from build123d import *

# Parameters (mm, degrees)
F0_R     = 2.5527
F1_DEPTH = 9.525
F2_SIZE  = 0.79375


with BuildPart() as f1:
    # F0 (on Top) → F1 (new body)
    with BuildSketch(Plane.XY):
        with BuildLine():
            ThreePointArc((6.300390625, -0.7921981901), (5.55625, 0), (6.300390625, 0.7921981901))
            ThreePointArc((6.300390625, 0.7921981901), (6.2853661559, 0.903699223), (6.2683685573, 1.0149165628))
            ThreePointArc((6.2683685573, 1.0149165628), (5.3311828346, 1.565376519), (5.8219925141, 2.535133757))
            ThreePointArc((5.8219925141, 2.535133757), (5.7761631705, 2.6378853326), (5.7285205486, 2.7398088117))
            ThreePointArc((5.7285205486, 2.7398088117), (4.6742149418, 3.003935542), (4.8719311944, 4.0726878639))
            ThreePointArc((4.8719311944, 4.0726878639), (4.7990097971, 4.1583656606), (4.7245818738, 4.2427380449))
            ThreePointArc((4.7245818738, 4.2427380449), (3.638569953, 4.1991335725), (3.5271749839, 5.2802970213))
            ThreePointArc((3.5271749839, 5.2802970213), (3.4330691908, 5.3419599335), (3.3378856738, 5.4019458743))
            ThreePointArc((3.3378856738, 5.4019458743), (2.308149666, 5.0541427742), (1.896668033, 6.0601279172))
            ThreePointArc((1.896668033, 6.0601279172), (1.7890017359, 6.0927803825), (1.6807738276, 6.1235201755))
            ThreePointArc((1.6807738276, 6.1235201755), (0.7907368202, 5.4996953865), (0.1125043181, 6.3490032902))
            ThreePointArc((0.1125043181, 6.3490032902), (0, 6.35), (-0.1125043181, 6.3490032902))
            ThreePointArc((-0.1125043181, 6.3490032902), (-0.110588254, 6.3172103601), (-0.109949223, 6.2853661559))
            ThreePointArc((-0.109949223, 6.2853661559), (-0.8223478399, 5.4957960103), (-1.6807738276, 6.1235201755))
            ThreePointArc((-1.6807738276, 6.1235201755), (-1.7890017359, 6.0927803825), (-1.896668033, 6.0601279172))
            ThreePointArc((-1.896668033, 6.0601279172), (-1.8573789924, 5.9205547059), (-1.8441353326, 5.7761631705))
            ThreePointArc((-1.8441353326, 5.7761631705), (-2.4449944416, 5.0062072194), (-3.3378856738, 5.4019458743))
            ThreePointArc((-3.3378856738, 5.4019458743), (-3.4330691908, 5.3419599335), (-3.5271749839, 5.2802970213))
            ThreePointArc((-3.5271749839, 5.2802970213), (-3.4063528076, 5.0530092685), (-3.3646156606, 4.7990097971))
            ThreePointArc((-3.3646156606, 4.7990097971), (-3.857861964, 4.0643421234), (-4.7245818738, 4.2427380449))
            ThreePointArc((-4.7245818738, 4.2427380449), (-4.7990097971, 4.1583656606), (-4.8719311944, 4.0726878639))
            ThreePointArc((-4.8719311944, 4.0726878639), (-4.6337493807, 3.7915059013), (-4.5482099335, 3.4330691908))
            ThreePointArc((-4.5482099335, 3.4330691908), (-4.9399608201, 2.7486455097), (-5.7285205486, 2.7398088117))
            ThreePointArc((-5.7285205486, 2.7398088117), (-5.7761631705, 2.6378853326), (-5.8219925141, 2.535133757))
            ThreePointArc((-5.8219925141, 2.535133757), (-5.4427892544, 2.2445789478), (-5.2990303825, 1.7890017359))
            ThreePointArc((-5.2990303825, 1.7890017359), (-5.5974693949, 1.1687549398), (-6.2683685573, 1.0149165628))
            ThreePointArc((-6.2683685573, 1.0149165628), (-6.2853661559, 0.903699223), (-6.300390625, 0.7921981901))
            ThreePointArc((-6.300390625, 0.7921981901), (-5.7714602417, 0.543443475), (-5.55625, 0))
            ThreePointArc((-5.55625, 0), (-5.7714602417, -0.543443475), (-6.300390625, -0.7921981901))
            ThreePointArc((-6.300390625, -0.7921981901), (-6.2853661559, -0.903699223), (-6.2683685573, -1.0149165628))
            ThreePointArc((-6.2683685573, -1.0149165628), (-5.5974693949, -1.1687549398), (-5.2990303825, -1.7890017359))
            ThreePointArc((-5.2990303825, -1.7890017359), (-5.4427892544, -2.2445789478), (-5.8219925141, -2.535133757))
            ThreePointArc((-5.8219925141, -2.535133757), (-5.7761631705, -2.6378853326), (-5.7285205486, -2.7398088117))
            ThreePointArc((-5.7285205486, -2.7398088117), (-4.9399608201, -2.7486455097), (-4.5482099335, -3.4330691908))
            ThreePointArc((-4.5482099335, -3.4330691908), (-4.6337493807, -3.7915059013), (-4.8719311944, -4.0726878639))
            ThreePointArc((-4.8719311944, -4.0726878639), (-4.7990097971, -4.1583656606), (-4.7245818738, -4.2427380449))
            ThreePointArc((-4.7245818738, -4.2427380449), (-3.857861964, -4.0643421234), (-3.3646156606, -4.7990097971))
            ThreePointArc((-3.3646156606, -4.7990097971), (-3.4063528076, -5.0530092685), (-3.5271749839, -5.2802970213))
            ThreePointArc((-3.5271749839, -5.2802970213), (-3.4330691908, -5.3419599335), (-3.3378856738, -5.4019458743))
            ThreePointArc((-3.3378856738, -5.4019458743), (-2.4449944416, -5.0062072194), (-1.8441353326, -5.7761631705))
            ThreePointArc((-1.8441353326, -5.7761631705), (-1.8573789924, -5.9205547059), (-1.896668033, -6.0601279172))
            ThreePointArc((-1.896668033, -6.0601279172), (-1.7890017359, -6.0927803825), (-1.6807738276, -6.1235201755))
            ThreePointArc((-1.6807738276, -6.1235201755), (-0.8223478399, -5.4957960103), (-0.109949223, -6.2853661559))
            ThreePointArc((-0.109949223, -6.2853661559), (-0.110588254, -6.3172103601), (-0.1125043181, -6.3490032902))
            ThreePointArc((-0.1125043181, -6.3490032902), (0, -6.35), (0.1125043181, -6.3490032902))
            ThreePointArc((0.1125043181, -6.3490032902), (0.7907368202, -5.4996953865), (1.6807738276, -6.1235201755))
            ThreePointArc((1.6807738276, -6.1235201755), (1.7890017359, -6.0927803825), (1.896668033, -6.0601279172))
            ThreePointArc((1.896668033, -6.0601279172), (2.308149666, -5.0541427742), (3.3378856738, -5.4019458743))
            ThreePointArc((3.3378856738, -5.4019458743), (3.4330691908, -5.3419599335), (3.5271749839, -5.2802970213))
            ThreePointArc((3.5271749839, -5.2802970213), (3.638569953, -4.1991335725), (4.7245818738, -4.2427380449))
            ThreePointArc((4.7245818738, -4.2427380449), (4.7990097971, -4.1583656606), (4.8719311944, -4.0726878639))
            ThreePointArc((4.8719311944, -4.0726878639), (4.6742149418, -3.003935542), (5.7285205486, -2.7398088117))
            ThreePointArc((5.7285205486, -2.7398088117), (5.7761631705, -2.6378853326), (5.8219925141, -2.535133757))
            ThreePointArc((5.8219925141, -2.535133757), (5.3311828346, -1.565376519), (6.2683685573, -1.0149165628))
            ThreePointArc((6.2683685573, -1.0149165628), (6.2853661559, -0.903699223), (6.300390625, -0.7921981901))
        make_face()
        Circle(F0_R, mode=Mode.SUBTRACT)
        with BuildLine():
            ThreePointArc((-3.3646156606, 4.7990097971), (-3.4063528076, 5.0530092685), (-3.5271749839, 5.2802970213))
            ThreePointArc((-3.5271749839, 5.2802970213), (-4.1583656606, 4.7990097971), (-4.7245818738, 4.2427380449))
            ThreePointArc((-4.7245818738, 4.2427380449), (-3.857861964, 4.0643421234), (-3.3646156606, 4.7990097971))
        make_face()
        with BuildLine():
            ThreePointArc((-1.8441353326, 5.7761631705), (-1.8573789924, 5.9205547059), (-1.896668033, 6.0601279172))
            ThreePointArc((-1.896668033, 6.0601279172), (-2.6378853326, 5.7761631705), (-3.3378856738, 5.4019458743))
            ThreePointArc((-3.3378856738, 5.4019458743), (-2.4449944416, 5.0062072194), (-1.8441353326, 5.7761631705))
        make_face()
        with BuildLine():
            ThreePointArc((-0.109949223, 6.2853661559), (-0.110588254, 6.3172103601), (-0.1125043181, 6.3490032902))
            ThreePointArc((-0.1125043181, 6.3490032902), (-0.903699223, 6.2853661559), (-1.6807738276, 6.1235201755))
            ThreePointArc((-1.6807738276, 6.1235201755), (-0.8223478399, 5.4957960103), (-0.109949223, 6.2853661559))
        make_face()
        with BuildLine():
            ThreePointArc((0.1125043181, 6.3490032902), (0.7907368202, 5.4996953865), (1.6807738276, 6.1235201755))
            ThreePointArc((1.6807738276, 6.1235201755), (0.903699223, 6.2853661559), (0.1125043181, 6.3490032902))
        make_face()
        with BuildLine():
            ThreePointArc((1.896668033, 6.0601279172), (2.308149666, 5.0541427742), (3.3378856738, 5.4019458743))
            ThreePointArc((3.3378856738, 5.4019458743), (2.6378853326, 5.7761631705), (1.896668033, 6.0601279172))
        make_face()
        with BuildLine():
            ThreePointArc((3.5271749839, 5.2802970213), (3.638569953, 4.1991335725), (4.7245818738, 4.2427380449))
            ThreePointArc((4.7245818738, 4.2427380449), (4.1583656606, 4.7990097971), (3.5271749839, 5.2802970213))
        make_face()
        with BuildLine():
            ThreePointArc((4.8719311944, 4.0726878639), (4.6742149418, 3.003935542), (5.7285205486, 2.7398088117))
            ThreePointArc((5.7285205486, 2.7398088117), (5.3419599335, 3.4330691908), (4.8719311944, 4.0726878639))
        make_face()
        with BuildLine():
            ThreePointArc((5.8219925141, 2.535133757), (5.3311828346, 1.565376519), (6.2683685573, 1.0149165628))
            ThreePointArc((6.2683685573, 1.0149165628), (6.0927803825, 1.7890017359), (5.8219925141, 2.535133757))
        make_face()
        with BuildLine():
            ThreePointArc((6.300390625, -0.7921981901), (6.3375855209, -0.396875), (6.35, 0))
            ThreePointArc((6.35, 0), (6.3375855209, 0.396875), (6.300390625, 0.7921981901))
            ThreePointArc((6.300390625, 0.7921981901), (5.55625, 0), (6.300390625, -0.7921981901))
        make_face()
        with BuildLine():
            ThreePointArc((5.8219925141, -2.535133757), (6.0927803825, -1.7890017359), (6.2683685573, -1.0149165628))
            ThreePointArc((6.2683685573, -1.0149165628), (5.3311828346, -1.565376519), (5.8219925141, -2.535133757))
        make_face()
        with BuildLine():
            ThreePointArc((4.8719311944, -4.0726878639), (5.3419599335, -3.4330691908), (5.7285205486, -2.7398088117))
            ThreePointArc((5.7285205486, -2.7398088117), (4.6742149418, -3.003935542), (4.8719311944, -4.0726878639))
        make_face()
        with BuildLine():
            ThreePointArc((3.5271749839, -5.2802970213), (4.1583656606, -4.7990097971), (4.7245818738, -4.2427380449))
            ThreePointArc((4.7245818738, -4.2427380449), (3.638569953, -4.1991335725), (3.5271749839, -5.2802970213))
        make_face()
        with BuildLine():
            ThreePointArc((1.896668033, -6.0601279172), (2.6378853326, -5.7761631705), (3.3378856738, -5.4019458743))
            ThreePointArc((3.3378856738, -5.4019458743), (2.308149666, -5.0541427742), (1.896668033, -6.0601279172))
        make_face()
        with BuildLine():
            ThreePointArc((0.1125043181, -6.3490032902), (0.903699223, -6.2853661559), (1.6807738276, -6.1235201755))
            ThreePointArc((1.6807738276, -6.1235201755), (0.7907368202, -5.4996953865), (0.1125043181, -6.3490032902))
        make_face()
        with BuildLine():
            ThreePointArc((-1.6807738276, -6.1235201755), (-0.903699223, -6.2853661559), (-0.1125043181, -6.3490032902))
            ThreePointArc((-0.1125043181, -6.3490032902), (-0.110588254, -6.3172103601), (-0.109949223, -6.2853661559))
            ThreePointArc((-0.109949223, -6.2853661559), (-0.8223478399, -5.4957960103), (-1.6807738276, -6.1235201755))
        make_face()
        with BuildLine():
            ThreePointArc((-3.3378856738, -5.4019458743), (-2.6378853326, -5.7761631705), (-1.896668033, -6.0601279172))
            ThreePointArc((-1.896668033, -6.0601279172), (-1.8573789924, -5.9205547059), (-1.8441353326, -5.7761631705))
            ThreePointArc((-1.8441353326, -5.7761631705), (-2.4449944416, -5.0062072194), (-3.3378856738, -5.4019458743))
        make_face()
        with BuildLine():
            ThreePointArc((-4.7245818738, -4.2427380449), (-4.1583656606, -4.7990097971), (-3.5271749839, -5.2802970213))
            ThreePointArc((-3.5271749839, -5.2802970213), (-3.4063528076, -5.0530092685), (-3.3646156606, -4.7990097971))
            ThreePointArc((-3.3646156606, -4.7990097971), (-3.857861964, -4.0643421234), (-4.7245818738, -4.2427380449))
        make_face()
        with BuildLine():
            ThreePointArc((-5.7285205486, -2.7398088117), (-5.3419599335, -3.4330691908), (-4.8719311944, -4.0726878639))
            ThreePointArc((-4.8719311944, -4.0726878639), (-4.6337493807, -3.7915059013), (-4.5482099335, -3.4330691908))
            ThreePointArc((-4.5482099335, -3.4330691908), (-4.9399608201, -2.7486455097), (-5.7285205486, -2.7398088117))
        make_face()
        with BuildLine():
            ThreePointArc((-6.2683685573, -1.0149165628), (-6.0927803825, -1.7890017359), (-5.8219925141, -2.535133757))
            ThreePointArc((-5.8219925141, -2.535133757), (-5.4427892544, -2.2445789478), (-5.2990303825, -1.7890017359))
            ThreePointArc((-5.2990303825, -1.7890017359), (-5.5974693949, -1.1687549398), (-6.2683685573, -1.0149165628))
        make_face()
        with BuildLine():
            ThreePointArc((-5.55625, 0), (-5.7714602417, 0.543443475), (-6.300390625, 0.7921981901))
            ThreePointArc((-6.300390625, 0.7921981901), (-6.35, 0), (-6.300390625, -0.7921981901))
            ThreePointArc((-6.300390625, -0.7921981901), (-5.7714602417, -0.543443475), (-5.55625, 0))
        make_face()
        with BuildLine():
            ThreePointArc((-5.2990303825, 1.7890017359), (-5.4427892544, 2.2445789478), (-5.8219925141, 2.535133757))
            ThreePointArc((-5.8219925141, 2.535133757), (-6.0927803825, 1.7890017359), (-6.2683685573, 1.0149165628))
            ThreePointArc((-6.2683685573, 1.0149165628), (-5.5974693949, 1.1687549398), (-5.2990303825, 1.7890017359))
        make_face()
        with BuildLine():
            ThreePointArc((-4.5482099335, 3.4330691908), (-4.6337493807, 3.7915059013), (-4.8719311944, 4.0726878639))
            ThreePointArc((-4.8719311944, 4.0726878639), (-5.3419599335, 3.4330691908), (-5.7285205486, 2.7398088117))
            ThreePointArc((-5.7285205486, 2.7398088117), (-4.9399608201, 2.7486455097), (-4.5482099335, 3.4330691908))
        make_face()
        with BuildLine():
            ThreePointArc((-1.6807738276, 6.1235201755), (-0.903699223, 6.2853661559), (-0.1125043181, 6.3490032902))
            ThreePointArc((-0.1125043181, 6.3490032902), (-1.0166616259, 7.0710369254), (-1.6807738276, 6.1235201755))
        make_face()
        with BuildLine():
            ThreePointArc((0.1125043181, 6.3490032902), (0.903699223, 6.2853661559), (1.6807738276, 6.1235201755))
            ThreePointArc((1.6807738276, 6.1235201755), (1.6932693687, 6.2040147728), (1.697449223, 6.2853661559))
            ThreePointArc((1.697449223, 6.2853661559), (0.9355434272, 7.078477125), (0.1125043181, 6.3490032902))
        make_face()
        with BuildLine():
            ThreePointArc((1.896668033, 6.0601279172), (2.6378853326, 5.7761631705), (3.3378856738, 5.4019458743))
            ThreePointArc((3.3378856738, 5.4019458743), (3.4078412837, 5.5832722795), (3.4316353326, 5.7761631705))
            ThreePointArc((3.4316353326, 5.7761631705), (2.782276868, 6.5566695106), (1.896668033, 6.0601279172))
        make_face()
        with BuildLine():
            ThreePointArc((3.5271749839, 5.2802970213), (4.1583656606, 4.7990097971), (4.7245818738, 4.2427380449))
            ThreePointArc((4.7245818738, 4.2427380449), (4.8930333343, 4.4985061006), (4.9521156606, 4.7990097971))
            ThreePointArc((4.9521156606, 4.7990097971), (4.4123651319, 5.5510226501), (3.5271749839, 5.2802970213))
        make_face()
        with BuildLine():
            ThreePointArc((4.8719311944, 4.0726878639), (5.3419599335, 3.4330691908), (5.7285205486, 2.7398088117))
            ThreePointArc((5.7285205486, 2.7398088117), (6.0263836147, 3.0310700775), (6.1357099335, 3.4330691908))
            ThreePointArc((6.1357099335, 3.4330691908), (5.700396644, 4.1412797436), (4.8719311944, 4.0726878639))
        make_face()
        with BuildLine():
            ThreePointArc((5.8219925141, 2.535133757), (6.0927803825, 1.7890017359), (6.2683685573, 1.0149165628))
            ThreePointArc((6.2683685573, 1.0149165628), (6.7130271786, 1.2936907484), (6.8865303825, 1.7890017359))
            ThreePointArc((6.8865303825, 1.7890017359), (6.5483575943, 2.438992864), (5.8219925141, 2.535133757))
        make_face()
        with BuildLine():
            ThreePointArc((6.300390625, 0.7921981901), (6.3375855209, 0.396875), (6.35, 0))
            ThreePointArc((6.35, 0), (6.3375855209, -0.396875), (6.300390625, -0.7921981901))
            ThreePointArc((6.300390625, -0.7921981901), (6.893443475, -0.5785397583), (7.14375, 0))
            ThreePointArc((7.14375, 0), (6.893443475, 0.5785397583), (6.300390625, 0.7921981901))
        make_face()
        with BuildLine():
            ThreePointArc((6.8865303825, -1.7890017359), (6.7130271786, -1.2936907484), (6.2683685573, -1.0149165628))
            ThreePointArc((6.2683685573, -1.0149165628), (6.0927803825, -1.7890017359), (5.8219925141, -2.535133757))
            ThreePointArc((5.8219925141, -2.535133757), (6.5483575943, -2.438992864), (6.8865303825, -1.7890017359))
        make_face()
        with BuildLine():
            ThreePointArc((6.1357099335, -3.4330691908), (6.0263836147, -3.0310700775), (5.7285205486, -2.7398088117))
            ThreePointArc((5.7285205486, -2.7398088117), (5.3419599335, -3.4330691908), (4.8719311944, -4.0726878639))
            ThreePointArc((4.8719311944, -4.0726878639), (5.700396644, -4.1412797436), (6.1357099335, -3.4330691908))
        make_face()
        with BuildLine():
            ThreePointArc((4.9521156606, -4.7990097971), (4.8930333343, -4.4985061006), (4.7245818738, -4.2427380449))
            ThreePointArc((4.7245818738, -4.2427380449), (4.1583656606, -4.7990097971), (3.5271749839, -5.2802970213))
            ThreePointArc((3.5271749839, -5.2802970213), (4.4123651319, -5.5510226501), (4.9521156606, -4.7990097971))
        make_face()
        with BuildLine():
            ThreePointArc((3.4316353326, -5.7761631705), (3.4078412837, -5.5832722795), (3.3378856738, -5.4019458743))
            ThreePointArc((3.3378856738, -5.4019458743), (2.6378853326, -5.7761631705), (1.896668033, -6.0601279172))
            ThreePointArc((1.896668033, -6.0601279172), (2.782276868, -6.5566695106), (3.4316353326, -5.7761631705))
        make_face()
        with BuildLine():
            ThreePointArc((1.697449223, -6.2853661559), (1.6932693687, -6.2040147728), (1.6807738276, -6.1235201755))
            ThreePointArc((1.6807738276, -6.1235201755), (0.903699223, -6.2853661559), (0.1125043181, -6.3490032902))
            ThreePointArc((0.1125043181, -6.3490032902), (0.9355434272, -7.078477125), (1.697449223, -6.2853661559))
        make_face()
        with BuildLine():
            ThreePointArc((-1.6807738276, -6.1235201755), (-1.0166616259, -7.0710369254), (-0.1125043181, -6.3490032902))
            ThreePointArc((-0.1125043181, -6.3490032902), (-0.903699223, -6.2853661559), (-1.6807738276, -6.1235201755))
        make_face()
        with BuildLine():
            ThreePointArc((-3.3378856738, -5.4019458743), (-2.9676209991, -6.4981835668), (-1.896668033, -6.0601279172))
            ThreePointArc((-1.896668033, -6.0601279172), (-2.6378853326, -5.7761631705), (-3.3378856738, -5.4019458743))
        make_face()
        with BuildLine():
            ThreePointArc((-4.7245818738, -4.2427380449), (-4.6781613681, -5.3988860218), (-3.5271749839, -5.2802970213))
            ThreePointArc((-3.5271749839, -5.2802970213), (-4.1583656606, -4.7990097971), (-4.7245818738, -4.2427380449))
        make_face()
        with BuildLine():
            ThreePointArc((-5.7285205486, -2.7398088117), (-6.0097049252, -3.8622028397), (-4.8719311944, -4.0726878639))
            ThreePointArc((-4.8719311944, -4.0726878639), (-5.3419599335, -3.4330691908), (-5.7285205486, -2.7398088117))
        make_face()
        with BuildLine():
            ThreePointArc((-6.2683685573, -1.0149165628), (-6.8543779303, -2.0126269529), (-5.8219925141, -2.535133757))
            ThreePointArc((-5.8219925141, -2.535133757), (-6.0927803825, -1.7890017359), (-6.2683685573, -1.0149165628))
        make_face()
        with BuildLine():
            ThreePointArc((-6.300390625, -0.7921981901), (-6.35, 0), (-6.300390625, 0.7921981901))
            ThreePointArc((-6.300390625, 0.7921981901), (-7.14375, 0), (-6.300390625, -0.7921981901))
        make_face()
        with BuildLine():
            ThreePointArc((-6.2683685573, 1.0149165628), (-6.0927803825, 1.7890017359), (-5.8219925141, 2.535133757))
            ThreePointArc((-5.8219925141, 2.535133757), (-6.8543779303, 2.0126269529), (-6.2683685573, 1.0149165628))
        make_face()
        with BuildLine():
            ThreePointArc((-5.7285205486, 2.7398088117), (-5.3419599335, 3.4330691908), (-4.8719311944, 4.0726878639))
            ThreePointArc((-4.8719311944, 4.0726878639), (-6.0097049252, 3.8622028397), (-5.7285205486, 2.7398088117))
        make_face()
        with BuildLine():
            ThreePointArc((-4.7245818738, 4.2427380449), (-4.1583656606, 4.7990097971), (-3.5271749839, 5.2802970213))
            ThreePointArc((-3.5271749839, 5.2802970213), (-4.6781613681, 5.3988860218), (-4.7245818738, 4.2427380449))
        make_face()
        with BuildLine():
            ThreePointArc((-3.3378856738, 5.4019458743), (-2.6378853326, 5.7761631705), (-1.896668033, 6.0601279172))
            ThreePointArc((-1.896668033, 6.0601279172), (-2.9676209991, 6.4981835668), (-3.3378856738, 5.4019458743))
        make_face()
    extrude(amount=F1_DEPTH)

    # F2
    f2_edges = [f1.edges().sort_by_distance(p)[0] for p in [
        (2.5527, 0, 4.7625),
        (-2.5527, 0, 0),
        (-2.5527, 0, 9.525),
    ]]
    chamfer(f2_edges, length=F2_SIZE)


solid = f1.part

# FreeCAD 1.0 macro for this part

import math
import FreeCAD as App
import Part
import Sketcher

V = App.Vector
Q = App.Units.Quantity


def edges_at(feature, points):
    """Names of the edges that pass closest to the given points."""
    edges = feature.Shape.Edges
    near = lambda p: min(range(len(edges)), key=lambda i: edges[i].distToShape(Part.Vertex(*p))[0])
    return sorted({f"Edge{near(p) + 1}" for p in points})

doc = App.newDocument("Part")
body = doc.addObject("PartDesign::Body", "Body")

# Sketch on XY plane
sketch1 = body.newObject("Sketcher::SketchObject", "Sketch")
sketch1.AttachmentSupport = (doc.getObject("XY_Plane"), [""])
sketch1.MapMode = "FlatFace"
sketch1.addGeometry(Part.ArcOfCircle(Part.Circle(V(0, 0, 0), V(0, 0, 1), 6.35), math.radians(7.17), math.radians(9.2)), False)
sketch1.addGeometry(Part.ArcOfCircle(Part.Circle(V(6.09, 1.79, 0), V(0, 0, 1), 0.79), math.radians(-77), math.radians(0)), False)
sketch1.addGeometry(Part.ArcOfCircle(Part.Circle(V(6.09, 1.79, 0), V(0, 0, 1), 0.79), math.radians(0), math.radians(110)), False)
sketch1.addGeometry(Part.ArcOfCircle(Part.Circle(V(0, 0, 0), V(0, 0, 1), 6.35), math.radians(23.53), math.radians(25.56)), False)
sketch1.addGeometry(Part.ArcOfCircle(Part.Circle(V(5.34, 3.43, 0), V(0, 0, 1), 0.79), math.radians(-61), math.radians(0)), False)
sketch1.addGeometry(Part.ArcOfCircle(Part.Circle(V(5.34, 3.43, 0), V(0, 0, 1), 0.79), math.radians(0), math.radians(126)), False)
sketch1.addGeometry(Part.ArcOfCircle(Part.Circle(V(0, 0, 0), V(0, 0, 1), 6.35), math.radians(39.89), math.radians(41.92)), False)
sketch1.addGeometry(Part.ArcOfCircle(Part.Circle(V(4.16, 4.8, 0), V(0, 0, 1), 0.79), math.radians(-44), math.radians(0)), False)
sketch1.addGeometry(Part.ArcOfCircle(Part.Circle(V(4.16, 4.8, 0), V(0, 0, 1), 0.79), math.radians(0), math.radians(143)), False)
sketch1.addGeometry(Part.ArcOfCircle(Part.Circle(V(0, 0, 0), V(0, 0, 1), 6.35), math.radians(56.26), math.radians(58.29)), False)
sketch1.addGeometry(Part.ArcOfCircle(Part.Circle(V(2.64, 5.78, 0), V(0, 0, 1), 0.79), math.radians(-28), math.radians(0)), False)
sketch1.addGeometry(Part.ArcOfCircle(Part.Circle(V(2.64, 5.78, 0), V(0, 0, 1), 0.79), math.radians(0), math.radians(159)), False)
sketch1.addGeometry(Part.ArcOfCircle(Part.Circle(V(0, 0, 0), V(0, 0, 1), 6.35), math.radians(72.62), math.radians(74.65)), False)
sketch1.addGeometry(Part.ArcOfCircle(Part.Circle(V(0.9, 6.29, 0), V(0, 0, 1), 0.79), math.radians(-11.77), math.radians(0)), False)
sketch1.addGeometry(Part.ArcOfCircle(Part.Circle(V(0.9, 6.29, 0), V(0, 0, 1), 0.79), math.radians(0), math.radians(175)), False)
sketch1.addGeometry(Part.ArcOfCircle(Part.Circle(V(0, 0, 0), V(0, 0, 1), 6.35), math.radians(88.98), math.radians(91.02)), False)
sketch1.addGeometry(Part.ArcOfCircle(Part.Circle(V(-0.9, 6.29, 0), V(0, 0, 1), 0.79), math.radians(5), math.radians(192)), False)
sketch1.addGeometry(Part.ArcOfCircle(Part.Circle(V(0, 0, 0), V(0, 0, 1), 6.35), math.radians(105.35), math.radians(107.38)), False)
sketch1.addGeometry(Part.ArcOfCircle(Part.Circle(V(-2.64, 5.78, 0), V(0, 0, 1), 0.79), math.radians(21), math.radians(208)), False)
sketch1.addGeometry(Part.ArcOfCircle(Part.Circle(V(0, 0, 0), V(0, 0, 1), 6.35), math.radians(121.71), math.radians(123.74)), False)
sketch1.addGeometry(Part.ArcOfCircle(Part.Circle(V(-4.16, 4.8, 0), V(0, 0, 1), 0.79), math.radians(37), math.radians(224)), False)
sketch1.addGeometry(Part.ArcOfCircle(Part.Circle(V(0, 0, 0), V(0, 0, 1), 6.35), math.radians(138.08), math.radians(140.11)), False)
sketch1.addGeometry(Part.ArcOfCircle(Part.Circle(V(-5.34, 3.43, 0), V(0, 0, 1), 0.79), math.radians(54), math.radians(241)), False)
sketch1.addGeometry(Part.ArcOfCircle(Part.Circle(V(0, 0, 0), V(0, 0, 1), 6.35), math.radians(154.44), math.radians(156.47)), False)
sketch1.addGeometry(Part.ArcOfCircle(Part.Circle(V(-6.09, 1.79, 0), V(0, 0, 1), 0.79), math.radians(70), math.radians(257)), False)
sketch1.addGeometry(Part.ArcOfCircle(Part.Circle(V(0, 0, 0), V(0, 0, 1), 6.35), math.radians(170.8), math.radians(172.83)), False)
sketch1.addGeometry(Part.ArcOfCircle(Part.Circle(V(-6.35, 0, 0), V(0, 0, 1), 0.79), math.radians(86), math.radians(274)), False)
sketch1.addGeometry(Part.ArcOfCircle(Part.Circle(V(0, 0, 0), V(0, 0, 1), 6.35), math.radians(-172.83), math.radians(-170.8)), False)
sketch1.addGeometry(Part.ArcOfCircle(Part.Circle(V(-6.09, -1.79, 0), V(0, 0, 1), 0.79), math.radians(103), math.radians(290)), False)
sketch1.addGeometry(Part.ArcOfCircle(Part.Circle(V(0, 0, 0), V(0, 0, 1), 6.35), math.radians(-156.47), math.radians(-154.44)), False)
sketch1.addGeometry(Part.ArcOfCircle(Part.Circle(V(-5.34, -3.43, 0), V(0, 0, 1), 0.79), math.radians(119), math.radians(306)), False)
sketch1.addGeometry(Part.ArcOfCircle(Part.Circle(V(0, 0, 0), V(0, 0, 1), 6.35), math.radians(-140.11), math.radians(-138.08)), False)
sketch1.addGeometry(Part.ArcOfCircle(Part.Circle(V(-4.16, -4.8, 0), V(0, 0, 1), 0.79), math.radians(136), math.radians(323)), False)
sketch1.addGeometry(Part.ArcOfCircle(Part.Circle(V(0, 0, 0), V(0, 0, 1), 6.35), math.radians(-123.74), math.radians(-121.71)), False)
sketch1.addGeometry(Part.ArcOfCircle(Part.Circle(V(-2.64, -5.78, 0), V(0, 0, 1), 0.79), math.radians(152), math.radians(339)), False)
sketch1.addGeometry(Part.ArcOfCircle(Part.Circle(V(0, 0, 0), V(0, 0, 1), 6.35), math.radians(-107.38), math.radians(-105.35)), False)
sketch1.addGeometry(Part.ArcOfCircle(Part.Circle(V(-0.9, -6.29, 0), V(0, 0, 1), 0.79), math.radians(168), math.radians(355)), False)
sketch1.addGeometry(Part.ArcOfCircle(Part.Circle(V(0, 0, 0), V(0, 0, 1), 6.35), math.radians(-91.02), math.radians(-88.98)), False)
sketch1.addGeometry(Part.ArcOfCircle(Part.Circle(V(0.9, -6.29, 0), V(0, 0, 1), 0.79), math.radians(-175), math.radians(0)), False)
sketch1.addGeometry(Part.ArcOfCircle(Part.Circle(V(0.9, -6.29, 0), V(0, 0, 1), 0.79), math.radians(0), math.radians(11.77)), False)
sketch1.addGeometry(Part.ArcOfCircle(Part.Circle(V(0, 0, 0), V(0, 0, 1), 6.35), math.radians(-74.65), math.radians(-72.62)), False)
sketch1.addGeometry(Part.ArcOfCircle(Part.Circle(V(2.64, -5.78, 0), V(0, 0, 1), 0.79), math.radians(-159), math.radians(0)), False)
sketch1.addGeometry(Part.ArcOfCircle(Part.Circle(V(2.64, -5.78, 0), V(0, 0, 1), 0.79), math.radians(0), math.radians(28)), False)
sketch1.addGeometry(Part.ArcOfCircle(Part.Circle(V(0, 0, 0), V(0, 0, 1), 6.35), math.radians(-58.29), math.radians(-56.26)), False)
sketch1.addGeometry(Part.ArcOfCircle(Part.Circle(V(4.16, -4.8, 0), V(0, 0, 1), 0.79), math.radians(-143), math.radians(0)), False)
sketch1.addGeometry(Part.ArcOfCircle(Part.Circle(V(4.16, -4.8, 0), V(0, 0, 1), 0.79), math.radians(0), math.radians(44)), False)
sketch1.addGeometry(Part.ArcOfCircle(Part.Circle(V(0, 0, 0), V(0, 0, 1), 6.35), math.radians(-41.92), math.radians(-39.89)), False)
sketch1.addGeometry(Part.ArcOfCircle(Part.Circle(V(5.34, -3.43, 0), V(0, 0, 1), 0.79), math.radians(-126), math.radians(0)), False)
sketch1.addGeometry(Part.ArcOfCircle(Part.Circle(V(5.34, -3.43, 0), V(0, 0, 1), 0.79), math.radians(0), math.radians(61)), False)
sketch1.addGeometry(Part.ArcOfCircle(Part.Circle(V(0, 0, 0), V(0, 0, 1), 6.35), math.radians(-25.56), math.radians(-23.53)), False)
sketch1.addGeometry(Part.ArcOfCircle(Part.Circle(V(6.09, -1.79, 0), V(0, 0, 1), 0.79), math.radians(-110), math.radians(0)), False)
sketch1.addGeometry(Part.ArcOfCircle(Part.Circle(V(6.09, -1.79, 0), V(0, 0, 1), 0.79), math.radians(0), math.radians(77)), False)
sketch1.addGeometry(Part.ArcOfCircle(Part.Circle(V(0, 0, 0), V(0, 0, 1), 6.35), math.radians(-9.2), math.radians(-7.17)), False)
sketch1.addGeometry(Part.ArcOfCircle(Part.Circle(V(6.35, 0, 0), V(0, 0, 1), 0.79), math.radians(-94), math.radians(0)), False)
sketch1.addGeometry(Part.ArcOfCircle(Part.Circle(V(6.35, 0, 0), V(0, 0, 1), 0.79), math.radians(0), math.radians(94)), False)
sketch1.addGeometry(Part.Circle(V(0, 0, 0), V(0, 0, 1), 2.55), False)
sketch1.addConstraint(Sketcher.Constraint("Coincident", 0, 2, 1, 1))
sketch1.addConstraint(Sketcher.Constraint("Tangent", 1, 2, 2, 1))
sketch1.addConstraint(Sketcher.Constraint("Coincident", 2, 2, 3, 1))
sketch1.addConstraint(Sketcher.Constraint("Coincident", 3, 2, 4, 1))
sketch1.addConstraint(Sketcher.Constraint("Tangent", 4, 2, 5, 1))
sketch1.addConstraint(Sketcher.Constraint("Coincident", 5, 2, 6, 1))
sketch1.addConstraint(Sketcher.Constraint("Coincident", 6, 2, 7, 1))
sketch1.addConstraint(Sketcher.Constraint("Tangent", 7, 2, 8, 1))
sketch1.addConstraint(Sketcher.Constraint("Coincident", 8, 2, 9, 1))
sketch1.addConstraint(Sketcher.Constraint("Coincident", 9, 2, 10, 1))
sketch1.addConstraint(Sketcher.Constraint("Tangent", 10, 2, 11, 1))
sketch1.addConstraint(Sketcher.Constraint("Coincident", 11, 2, 12, 1))
sketch1.addConstraint(Sketcher.Constraint("Coincident", 12, 2, 13, 1))
sketch1.addConstraint(Sketcher.Constraint("Tangent", 13, 2, 14, 1))
sketch1.addConstraint(Sketcher.Constraint("Coincident", 14, 2, 15, 1))
sketch1.addConstraint(Sketcher.Constraint("Coincident", 15, 2, 16, 1))
sketch1.addConstraint(Sketcher.Constraint("Coincident", 16, 2, 17, 1))
sketch1.addConstraint(Sketcher.Constraint("Coincident", 17, 2, 18, 1))
sketch1.addConstraint(Sketcher.Constraint("Coincident", 18, 2, 19, 1))
sketch1.addConstraint(Sketcher.Constraint("Coincident", 19, 2, 20, 1))
sketch1.addConstraint(Sketcher.Constraint("Coincident", 20, 2, 21, 1))
sketch1.addConstraint(Sketcher.Constraint("Coincident", 21, 2, 22, 1))
sketch1.addConstraint(Sketcher.Constraint("Coincident", 22, 2, 23, 1))
sketch1.addConstraint(Sketcher.Constraint("Coincident", 23, 2, 24, 1))
sketch1.addConstraint(Sketcher.Constraint("Coincident", 24, 2, 25, 1))
sketch1.addConstraint(Sketcher.Constraint("Coincident", 25, 2, 26, 1))
sketch1.addConstraint(Sketcher.Constraint("Coincident", 26, 2, 27, 1))
sketch1.addConstraint(Sketcher.Constraint("Coincident", 27, 2, 28, 1))
sketch1.addConstraint(Sketcher.Constraint("Coincident", 28, 2, 29, 1))
sketch1.addConstraint(Sketcher.Constraint("Coincident", 29, 2, 30, 1))
sketch1.addConstraint(Sketcher.Constraint("Coincident", 30, 2, 31, 1))
sketch1.addConstraint(Sketcher.Constraint("Coincident", 31, 2, 32, 1))
sketch1.addConstraint(Sketcher.Constraint("Coincident", 32, 2, 33, 1))
sketch1.addConstraint(Sketcher.Constraint("Coincident", 33, 2, 34, 1))
sketch1.addConstraint(Sketcher.Constraint("Coincident", 34, 2, 35, 1))
sketch1.addConstraint(Sketcher.Constraint("Coincident", 35, 2, 36, 1))
sketch1.addConstraint(Sketcher.Constraint("Coincident", 36, 2, 37, 1))
sketch1.addConstraint(Sketcher.Constraint("Coincident", 37, 2, 38, 1))
sketch1.addConstraint(Sketcher.Constraint("Tangent", 38, 2, 39, 1))
sketch1.addConstraint(Sketcher.Constraint("Coincident", 39, 2, 40, 1))
sketch1.addConstraint(Sketcher.Constraint("Coincident", 40, 2, 41, 1))
sketch1.addConstraint(Sketcher.Constraint("Tangent", 41, 2, 42, 1))
sketch1.addConstraint(Sketcher.Constraint("Coincident", 42, 2, 43, 1))
sketch1.addConstraint(Sketcher.Constraint("Coincident", 43, 2, 44, 1))
sketch1.addConstraint(Sketcher.Constraint("Tangent", 44, 2, 45, 1))
sketch1.addConstraint(Sketcher.Constraint("Coincident", 45, 2, 46, 1))
sketch1.addConstraint(Sketcher.Constraint("Coincident", 46, 2, 47, 1))
sketch1.addConstraint(Sketcher.Constraint("Tangent", 47, 2, 48, 1))
sketch1.addConstraint(Sketcher.Constraint("Coincident", 48, 2, 49, 1))
sketch1.addConstraint(Sketcher.Constraint("Coincident", 49, 2, 50, 1))
sketch1.addConstraint(Sketcher.Constraint("Tangent", 50, 2, 51, 1))
sketch1.addConstraint(Sketcher.Constraint("Coincident", 51, 2, 52, 1))
sketch1.addConstraint(Sketcher.Constraint("Coincident", 52, 2, 53, 1))
sketch1.addConstraint(Sketcher.Constraint("Tangent", 53, 2, 54, 1))
sketch1.addConstraint(Sketcher.Constraint("Coincident", 54, 2, 0, 1))
sketch1.addConstraint(Sketcher.Constraint("Coincident", 0, 3, -1, 1))
sketch1.addConstraint(Sketcher.Constraint("Coincident", 3, 3, -1, 1))
sketch1.addConstraint(Sketcher.Constraint("Coincident", 6, 3, -1, 1))
sketch1.addConstraint(Sketcher.Constraint("Coincident", 9, 3, -1, 1))
sketch1.addConstraint(Sketcher.Constraint("Coincident", 12, 3, -1, 1))
sketch1.addConstraint(Sketcher.Constraint("Coincident", 15, 3, -1, 1))
sketch1.addConstraint(Sketcher.Constraint("Coincident", 17, 3, -1, 1))
sketch1.addConstraint(Sketcher.Constraint("Coincident", 19, 3, -1, 1))
sketch1.addConstraint(Sketcher.Constraint("Coincident", 21, 3, -1, 1))
sketch1.addConstraint(Sketcher.Constraint("Coincident", 23, 3, -1, 1))
sketch1.addConstraint(Sketcher.Constraint("Coincident", 25, 3, -1, 1))
sketch1.addConstraint(Sketcher.Constraint("Coincident", 27, 3, -1, 1))
sketch1.addConstraint(Sketcher.Constraint("Coincident", 29, 3, -1, 1))
sketch1.addConstraint(Sketcher.Constraint("Coincident", 31, 3, -1, 1))
sketch1.addConstraint(Sketcher.Constraint("Coincident", 33, 3, -1, 1))
sketch1.addConstraint(Sketcher.Constraint("Coincident", 35, 3, -1, 1))
sketch1.addConstraint(Sketcher.Constraint("Coincident", 37, 3, -1, 1))
sketch1.addConstraint(Sketcher.Constraint("Coincident", 40, 3, -1, 1))
sketch1.addConstraint(Sketcher.Constraint("Coincident", 43, 3, -1, 1))
sketch1.addConstraint(Sketcher.Constraint("Coincident", 46, 3, -1, 1))
sketch1.addConstraint(Sketcher.Constraint("Coincident", 49, 3, -1, 1))
sketch1.addConstraint(Sketcher.Constraint("Coincident", 52, 3, -1, 1))
sketch1.addConstraint(Sketcher.Constraint("Coincident", 55, 3, -1, 1))
sketch1.addConstraint(Sketcher.Constraint("Equal", 1, 2))
sketch1.addConstraint(Sketcher.Constraint("Equal", 0, 3))
sketch1.addConstraint(Sketcher.Constraint("Equal", 2, 4))
sketch1.addConstraint(Sketcher.Constraint("Equal", 4, 5))
sketch1.addConstraint(Sketcher.Constraint("Equal", 3, 6))
sketch1.addConstraint(Sketcher.Constraint("Equal", 5, 7))
sketch1.addConstraint(Sketcher.Constraint("Equal", 7, 8))
sketch1.addConstraint(Sketcher.Constraint("Equal", 6, 9))
sketch1.addConstraint(Sketcher.Constraint("Equal", 8, 10))
sketch1.addConstraint(Sketcher.Constraint("Equal", 10, 11))
sketch1.addConstraint(Sketcher.Constraint("Equal", 9, 12))
sketch1.addConstraint(Sketcher.Constraint("Equal", 11, 13))
sketch1.addConstraint(Sketcher.Constraint("Equal", 13, 14))
sketch1.addConstraint(Sketcher.Constraint("Equal", 12, 15))
sketch1.addConstraint(Sketcher.Constraint("Equal", 14, 16))
sketch1.addConstraint(Sketcher.Constraint("Equal", 15, 17))
sketch1.addConstraint(Sketcher.Constraint("Equal", 16, 18))
sketch1.addConstraint(Sketcher.Constraint("Equal", 17, 19))
sketch1.addConstraint(Sketcher.Constraint("Equal", 18, 20))
sketch1.addConstraint(Sketcher.Constraint("Equal", 19, 21))
sketch1.addConstraint(Sketcher.Constraint("Equal", 20, 22))
sketch1.addConstraint(Sketcher.Constraint("Equal", 21, 23))
sketch1.addConstraint(Sketcher.Constraint("Equal", 22, 24))
sketch1.addConstraint(Sketcher.Constraint("Equal", 23, 25))
sketch1.addConstraint(Sketcher.Constraint("Equal", 24, 26))
sketch1.addConstraint(Sketcher.Constraint("Equal", 25, 27))
sketch1.addConstraint(Sketcher.Constraint("Equal", 26, 28))
sketch1.addConstraint(Sketcher.Constraint("Equal", 27, 29))
sketch1.addConstraint(Sketcher.Constraint("Equal", 28, 30))
sketch1.addConstraint(Sketcher.Constraint("Equal", 29, 31))
sketch1.addConstraint(Sketcher.Constraint("Equal", 30, 32))
sketch1.addConstraint(Sketcher.Constraint("Equal", 31, 33))
sketch1.addConstraint(Sketcher.Constraint("Equal", 32, 34))
sketch1.addConstraint(Sketcher.Constraint("Equal", 33, 35))
sketch1.addConstraint(Sketcher.Constraint("Equal", 34, 36))
sketch1.addConstraint(Sketcher.Constraint("Equal", 35, 37))
sketch1.addConstraint(Sketcher.Constraint("Equal", 36, 38))
sketch1.addConstraint(Sketcher.Constraint("Equal", 38, 39))
sketch1.addConstraint(Sketcher.Constraint("Equal", 37, 40))
sketch1.addConstraint(Sketcher.Constraint("Equal", 39, 41))
sketch1.addConstraint(Sketcher.Constraint("Equal", 41, 42))
sketch1.addConstraint(Sketcher.Constraint("Equal", 40, 43))
sketch1.addConstraint(Sketcher.Constraint("Equal", 42, 44))
sketch1.addConstraint(Sketcher.Constraint("Equal", 44, 45))
sketch1.addConstraint(Sketcher.Constraint("Equal", 43, 46))
sketch1.addConstraint(Sketcher.Constraint("Equal", 45, 47))
sketch1.addConstraint(Sketcher.Constraint("Equal", 47, 48))
sketch1.addConstraint(Sketcher.Constraint("Equal", 46, 49))
sketch1.addConstraint(Sketcher.Constraint("Equal", 48, 50))
sketch1.addConstraint(Sketcher.Constraint("Equal", 50, 51))
sketch1.addConstraint(Sketcher.Constraint("Equal", 49, 52))
sketch1.addConstraint(Sketcher.Constraint("Equal", 51, 53))
sketch1.addConstraint(Sketcher.Constraint("Equal", 53, 54))
sketch1.addConstraint(Sketcher.Constraint("Symmetric", 1, 3, 28, 3, -1, 1))
sketch1.addConstraint(Sketcher.Constraint("Symmetric", 4, 3, 30, 3, -1, 1))
sketch1.addConstraint(Sketcher.Constraint("Symmetric", 7, 3, 32, 3, -1, 1))
sketch1.addConstraint(Sketcher.Constraint("Symmetric", 10, 3, 34, 3, -1, 1))
sketch1.addConstraint(Sketcher.Constraint("Symmetric", 13, 3, 36, 3, -1, 1))
sketch1.addConstraint(Sketcher.Constraint("Symmetric", 16, 3, 38, 3, -1, 1))
sketch1.addConstraint(Sketcher.Constraint("Symmetric", 18, 3, 41, 3, -1, 1))
sketch1.addConstraint(Sketcher.Constraint("Symmetric", 20, 3, 44, 3, -1, 1))
sketch1.addConstraint(Sketcher.Constraint("Symmetric", 22, 3, 47, 3, -1, 1))
sketch1.addConstraint(Sketcher.Constraint("Symmetric", 24, 3, 50, 3, -1, 1))
sketch1.addConstraint(Sketcher.Constraint("Symmetric", 26, 3, 53, 3, -1, 1))
sketch1.addConstraint(Sketcher.Constraint("Symmetric", 13, 3, 16, 3, -2))
sketch1.addConstraint(Sketcher.Constraint("Symmetric", 10, 3, 18, 3, -2))
sketch1.addConstraint(Sketcher.Constraint("Symmetric", 7, 3, 20, 3, -2))
sketch1.addConstraint(Sketcher.Constraint("Symmetric", 4, 3, 22, 3, -2))
sketch1.addConstraint(Sketcher.Constraint("Symmetric", 1, 3, 24, 3, -2))
sketch1.addConstraint(Sketcher.Constraint("PointOnObject", 26, 3, -1))
sketch1.addConstraint(Sketcher.Constraint("PointOnObject", 53, 2, -1))
sketch1.addConstraint(Sketcher.Constraint("Horizontal", 24, 3, 1, 2))
sketch1.addConstraint(Sketcher.Constraint("Horizontal", 22, 3, 4, 2))
sketch1.addConstraint(Sketcher.Constraint("Horizontal", 20, 3, 7, 2))
sketch1.addConstraint(Sketcher.Constraint("Horizontal", 18, 3, 10, 2))
sketch1.addConstraint(Sketcher.Constraint("Horizontal", 16, 3, 13, 2))
sketch1.addConstraint(Sketcher.Constraint("Horizontal", 39, 3, 38, 2))
sketch1.addConstraint(Sketcher.Constraint("Horizontal", 42, 3, 41, 2))
sketch1.addConstraint(Sketcher.Constraint("Horizontal", 45, 3, 44, 2))
sketch1.addConstraint(Sketcher.Constraint("Horizontal", 48, 3, 47, 2))
sketch1.addConstraint(Sketcher.Constraint("Horizontal", 51, 3, 50, 2))
sketch1.addConstraint(Sketcher.Constraint("Radius", 0, Q("0.25 in")))
sketch1.addConstraint(Sketcher.Constraint("Diameter", 55, Q("0.201 in")))
sketch1.addConstraint(Sketcher.Constraint("Radius", 1, Q("0.03125 in")))
sketch1.addConstraint(Sketcher.Constraint("DistanceX", 26, 3, -1, 1, Q("0.25 in")))
sketch1.addConstraint(Sketcher.Constraint("DistanceY", -1, 1, 1, 3, 1.789002))
sketch1.addConstraint(Sketcher.Constraint("DistanceX", -1, 1, 13, 3, 0.903699))
sketch1.addConstraint(Sketcher.Constraint("DistanceX", -1, 1, 1, 3, 6.09278))
sketch1.addConstraint(Sketcher.Constraint("DistanceX", -1, 1, 4, 3, 5.34196))
sketch1.addConstraint(Sketcher.Constraint("DistanceY", -1, 1, 4, 3, 3.433069))
sketch1.addConstraint(Sketcher.Constraint("DistanceY", -1, 1, 7, 3, 4.79901))
sketch1.addConstraint(Sketcher.Constraint("DistanceX", -1, 1, 6, 2, 4.724582))
sketch1.addConstraint(Sketcher.Constraint("DistanceX", -1, 1, 11, 2, 1.896668))
sketch1.addConstraint(Sketcher.Constraint("DistanceY", -1, 1, 12, 2, 6.12352))
sketch1.addConstraint(Sketcher.Constraint("DistanceX", -1, 1, 10, 3, 2.637885))
pad1 = body.newObject("PartDesign::Pad", "Pad")
pad1.Profile = sketch1
pad1.Length = Q("0.375 in")
doc.recompute()

chamfer = body.newObject("PartDesign::Chamfer", "Chamfer")
chamfer.Base = (pad1, edges_at(pad1, [(2.553, 0, 4.763), (-2.553, 0, 0), (-2.553, 0, 9.525)]))
chamfer.Size = Q("0.03125 in")

doc.recompute()
